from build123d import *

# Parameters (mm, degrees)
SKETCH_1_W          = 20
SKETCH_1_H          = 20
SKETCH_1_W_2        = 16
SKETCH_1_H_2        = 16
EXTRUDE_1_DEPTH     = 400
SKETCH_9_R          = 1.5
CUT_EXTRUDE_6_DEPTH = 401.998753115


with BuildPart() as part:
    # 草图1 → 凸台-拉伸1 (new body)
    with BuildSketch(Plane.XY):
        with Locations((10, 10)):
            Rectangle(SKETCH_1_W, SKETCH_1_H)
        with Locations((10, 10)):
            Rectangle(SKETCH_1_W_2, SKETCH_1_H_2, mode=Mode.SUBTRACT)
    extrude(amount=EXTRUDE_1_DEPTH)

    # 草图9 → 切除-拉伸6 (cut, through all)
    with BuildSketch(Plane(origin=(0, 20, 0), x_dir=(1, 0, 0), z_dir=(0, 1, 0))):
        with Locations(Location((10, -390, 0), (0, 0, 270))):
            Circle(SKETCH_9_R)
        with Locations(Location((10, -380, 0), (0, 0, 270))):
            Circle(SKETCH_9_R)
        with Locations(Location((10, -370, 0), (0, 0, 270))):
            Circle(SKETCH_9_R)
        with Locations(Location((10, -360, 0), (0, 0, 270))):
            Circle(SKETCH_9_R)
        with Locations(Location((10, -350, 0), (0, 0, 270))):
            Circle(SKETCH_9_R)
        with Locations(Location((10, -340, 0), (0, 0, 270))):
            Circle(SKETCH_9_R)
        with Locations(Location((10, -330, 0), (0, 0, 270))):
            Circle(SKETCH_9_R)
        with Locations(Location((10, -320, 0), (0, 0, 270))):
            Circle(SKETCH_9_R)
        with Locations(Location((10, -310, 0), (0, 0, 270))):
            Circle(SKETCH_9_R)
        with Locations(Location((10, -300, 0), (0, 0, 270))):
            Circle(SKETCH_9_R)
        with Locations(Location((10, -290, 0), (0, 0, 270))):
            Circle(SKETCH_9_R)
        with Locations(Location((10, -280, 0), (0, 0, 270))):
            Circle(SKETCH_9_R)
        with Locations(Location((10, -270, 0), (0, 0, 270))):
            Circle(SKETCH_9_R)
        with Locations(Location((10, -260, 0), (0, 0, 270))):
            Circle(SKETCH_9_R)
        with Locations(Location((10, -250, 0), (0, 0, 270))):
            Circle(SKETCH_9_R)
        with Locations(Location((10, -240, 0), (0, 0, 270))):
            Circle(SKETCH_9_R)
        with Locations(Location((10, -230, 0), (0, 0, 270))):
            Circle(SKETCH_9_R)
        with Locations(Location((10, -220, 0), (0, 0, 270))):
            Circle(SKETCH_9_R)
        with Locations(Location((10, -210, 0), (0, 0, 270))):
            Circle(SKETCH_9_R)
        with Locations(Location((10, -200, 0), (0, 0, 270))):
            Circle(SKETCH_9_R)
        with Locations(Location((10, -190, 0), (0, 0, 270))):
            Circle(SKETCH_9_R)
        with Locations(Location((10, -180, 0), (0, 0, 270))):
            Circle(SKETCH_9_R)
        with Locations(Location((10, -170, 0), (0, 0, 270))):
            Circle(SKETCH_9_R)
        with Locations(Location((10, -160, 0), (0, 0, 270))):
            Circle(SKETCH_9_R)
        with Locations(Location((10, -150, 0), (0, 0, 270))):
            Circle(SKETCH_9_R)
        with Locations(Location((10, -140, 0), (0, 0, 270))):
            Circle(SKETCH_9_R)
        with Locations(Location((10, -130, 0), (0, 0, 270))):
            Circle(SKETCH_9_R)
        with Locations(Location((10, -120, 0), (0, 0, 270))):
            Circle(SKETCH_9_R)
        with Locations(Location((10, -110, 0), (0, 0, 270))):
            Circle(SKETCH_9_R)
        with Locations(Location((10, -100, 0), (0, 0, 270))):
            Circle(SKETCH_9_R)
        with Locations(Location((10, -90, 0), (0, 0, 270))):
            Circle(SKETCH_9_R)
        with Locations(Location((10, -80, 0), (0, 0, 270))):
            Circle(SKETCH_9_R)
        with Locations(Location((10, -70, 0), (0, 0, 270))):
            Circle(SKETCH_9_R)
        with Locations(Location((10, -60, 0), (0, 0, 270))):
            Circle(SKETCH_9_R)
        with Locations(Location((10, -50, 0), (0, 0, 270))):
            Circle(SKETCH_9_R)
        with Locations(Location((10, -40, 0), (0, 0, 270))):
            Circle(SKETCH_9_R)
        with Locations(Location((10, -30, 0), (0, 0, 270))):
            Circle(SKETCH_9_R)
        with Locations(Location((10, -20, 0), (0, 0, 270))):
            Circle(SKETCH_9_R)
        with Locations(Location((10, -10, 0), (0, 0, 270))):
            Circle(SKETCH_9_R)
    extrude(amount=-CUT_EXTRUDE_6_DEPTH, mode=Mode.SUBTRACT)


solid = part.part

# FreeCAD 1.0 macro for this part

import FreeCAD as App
import Part
import Sketcher

doc = App.newDocument("Part")
body = doc.addObject("PartDesign::Body", "Body")

# Sketch on XY plane
sketch1 = body.newObject("Sketcher::SketchObject", "Sketch")
sketch1.AttachmentSupport = (doc.getObject("XY_Plane"), [""])
sketch1.MapMode = "FlatFace"
sketch1.addGeometry([
    Part.LineSegment(App.Vector(0, 20, 0), App.Vector(0, 0, 0)),  # 0
    Part.LineSegment(App.Vector(0, 0, 0), App.Vector(20, 0, 0)),  # 1
    Part.LineSegment(App.Vector(20, 0, 0), App.Vector(20, 20, 0)),  # 2
    Part.LineSegment(App.Vector(20, 20, 0), App.Vector(0, 20, 0)),  # 3
    Part.LineSegment(App.Vector(18, 2, 0), App.Vector(2, 2, 0)),  # 4
    Part.LineSegment(App.Vector(2, 2, 0), App.Vector(2, 18, 0)),  # 5
    Part.LineSegment(App.Vector(2, 18, 0), App.Vector(18, 18, 0)),  # 6
    Part.LineSegment(App.Vector(18, 18, 0), App.Vector(18, 2, 0)),  # 7
], False)
sketch1.addConstraint([
    Sketcher.Constraint("Coincident", 0, 2, 1, 1),
    Sketcher.Constraint("Coincident", 1, 2, 2, 1),
    Sketcher.Constraint("Coincident", 2, 2, 3, 1),
    Sketcher.Constraint("Coincident", 3, 2, 0, 1),
    Sketcher.Constraint("Coincident", 4, 2, 5, 1),
    Sketcher.Constraint("Coincident", 5, 2, 6, 1),
    Sketcher.Constraint("Coincident", 6, 2, 7, 1),
    Sketcher.Constraint("Coincident", 7, 2, 4, 1),
    Sketcher.Constraint("Vertical", 0),
    Sketcher.Constraint("Horizontal", 1),
    Sketcher.Constraint("Vertical", 2),
    Sketcher.Constraint("Horizontal", 3),
    Sketcher.Constraint("Horizontal", 4),
    Sketcher.Constraint("Vertical", 5),
    Sketcher.Constraint("Horizontal", 6),
    Sketcher.Constraint("Vertical", 7),
    Sketcher.Constraint("Coincident", 0, 2, -1, 1),
    Sketcher.Constraint("Equal", 3, 0),
    Sketcher.Constraint("Equal", 6, 5),
    Sketcher.Constraint("DistanceX", 1, 1, 1, 2, 20.0),
    Sketcher.Constraint("DistanceX", 4, 2, 4, 1, 16.0),
    Sketcher.Constraint("DistanceX", -1, 1, 4, 2, 2.0),
    Sketcher.Constraint("DistanceY", -1, 1, 4, 2, 2.0),
])
pad1 = body.newObject("PartDesign::Pad", "Pad")
pad1.Profile = sketch1
pad1.Length = 400

# Sketch on XZ plane
sketch2 = body.newObject("Sketcher::SketchObject", "Sketch001")
sketch2.AttachmentSupport = (doc.getObject("XZ_Plane"), [""])
sketch2.MapMode = "FlatFace"
sketch2.AttachmentOffset = App.Placement(App.Vector(0, 0, -20), App.Rotation())
sketch2.addGeometry([
    Part.Circle(App.Vector(10, 390, 0), App.Vector(0, 0, 1), 1.5),  # 0
    Part.Circle(App.Vector(10, 380, 0), App.Vector(0, 0, 1), 1.5),  # 1
    Part.Circle(App.Vector(10, 370, 0), App.Vector(0, 0, 1), 1.5),  # 2
    Part.Circle(App.Vector(10, 360, 0), App.Vector(0, 0, 1), 1.5),  # 3
    Part.Circle(App.Vector(10, 350, 0), App.Vector(0, 0, 1), 1.5),  # 4
    Part.Circle(App.Vector(10, 340, 0), App.Vector(0, 0, 1), 1.5),  # 5
    Part.Circle(App.Vector(10, 330, 0), App.Vector(0, 0, 1), 1.5),  # 6
    Part.Circle(App.Vector(10, 320, 0), App.Vector(0, 0, 1), 1.5),  # 7
    Part.Circle(App.Vector(10, 310, 0), App.Vector(0, 0, 1), 1.5),  # 8
    Part.Circle(App.Vector(10, 300, 0), App.Vector(0, 0, 1), 1.5),  # 9
    Part.Circle(App.Vector(10, 290, 0), App.Vector(0, 0, 1), 1.5),  # 10
    Part.Circle(App.Vector(10, 280, 0), App.Vector(0, 0, 1), 1.5),  # 11
    Part.Circle(App.Vector(10, 270, 0), App.Vector(0, 0, 1), 1.5),  # 12
    Part.Circle(App.Vector(10, 260, 0), App.Vector(0, 0, 1), 1.5),  # 13
    Part.Circle(App.Vector(10, 250, 0), App.Vector(0, 0, 1), 1.5),  # 14
    Part.Circle(App.Vector(10, 240, 0), App.Vector(0, 0, 1), 1.5),  # 15
    Part.Circle(App.Vector(10, 230, 0), App.Vector(0, 0, 1), 1.5),  # 16
    Part.Circle(App.Vector(10, 220, 0), App.Vector(0, 0, 1), 1.5),  # 17
    Part.Circle(App.Vector(10, 210, 0), App.Vector(0, 0, 1), 1.5),  # 18
    Part.Circle(App.Vector(10, 200, 0), App.Vector(0, 0, 1), 1.5),  # 19
    Part.Circle(App.Vector(10, 190, 0), App.Vector(0, 0, 1), 1.5),  # 20
    Part.Circle(App.Vector(10, 180, 0), App.Vector(0, 0, 1), 1.5),  # 21
    Part.Circle(App.Vector(10, 170, 0), App.Vector(0, 0, 1), 1.5),  # 22
    Part.Circle(App.Vector(10, 160, 0), App.Vector(0, 0, 1), 1.5),  # 23
    Part.Circle(App.Vector(10, 150, 0), App.Vector(0, 0, 1), 1.5),  # 24
    Part.Circle(App.Vector(10, 140, 0), App.Vector(0, 0, 1), 1.5),  # 25
    Part.Circle(App.Vector(10, 130, 0), App.Vector(0, 0, 1), 1.5),  # 26
    Part.Circle(App.Vector(10, 120, 0), App.Vector(0, 0, 1), 1.5),  # 27
    Part.Circle(App.Vector(10, 110, 0), App.Vector(0, 0, 1), 1.5),  # 28
    Part.Circle(App.Vector(10, 100, 0), App.Vector(0, 0, 1), 1.5),  # 29
    Part.Circle(App.Vector(10, 90, 0), App.Vector(0, 0, 1), 1.5),  # 30
    Part.Circle(App.Vector(10, 80, 0), App.Vector(0, 0, 1), 1.5),  # 31
    Part.Circle(App.Vector(10, 70, 0), App.Vector(0, 0, 1), 1.5),  # 32
    Part.Circle(App.Vector(10, 60, 0), App.Vector(0, 0, 1), 1.5),  # 33
    Part.Circle(App.Vector(10, 50, 0), App.Vector(0, 0, 1), 1.5),  # 34
    Part.Circle(App.Vector(10, 40, 0), App.Vector(0, 0, 1), 1.5),  # 35
    Part.Circle(App.Vector(10, 30, 0), App.Vector(0, 0, 1), 1.5),  # 36
    Part.Circle(App.Vector(10, 20, 0), App.Vector(0, 0, 1), 1.5),  # 37
    Part.Circle(App.Vector(10, 10, 0), App.Vector(0, 0, 1), 1.5),  # 38
], False)
sketch2.addConstraint([
    Sketcher.Constraint("Equal", 0, 1),
    Sketcher.Constraint("Equal", 1, 2),
    Sketcher.Constraint("Equal", 2, 3),
    Sketcher.Constraint("Equal", 3, 4),
    Sketcher.Constraint("Equal", 4, 5),
    Sketcher.Constraint("Equal", 5, 6),
    Sketcher.Constraint("Equal", 6, 7),
    Sketcher.Constraint("Equal", 7, 8),
    Sketcher.Constraint("Equal", 8, 9),
    Sketcher.Constraint("Equal", 9, 10),
    Sketcher.Constraint("Equal", 10, 11),
    Sketcher.Constraint("Equal", 11, 12),
    Sketcher.Constraint("Equal", 12, 13),
    Sketcher.Constraint("Equal", 13, 14),
    Sketcher.Constraint("Equal", 14, 15),
    Sketcher.Constraint("Equal", 15, 16),
    Sketcher.Constraint("Equal", 16, 17),
    Sketcher.Constraint("Equal", 17, 18),
    Sketcher.Constraint("Equal", 18, 19),
    Sketcher.Constraint("Equal", 19, 20),
    Sketcher.Constraint("Equal", 20, 21),
    Sketcher.Constraint("Equal", 21, 22),
    Sketcher.Constraint("Equal", 22, 23),
    Sketcher.Constraint("Equal", 23, 24),
    Sketcher.Constraint("Equal", 24, 25),
    Sketcher.Constraint("Equal", 25, 26),
    Sketcher.Constraint("Equal", 26, 27),
    Sketcher.Constraint("Equal", 27, 28),
    Sketcher.Constraint("Equal", 28, 29),
    Sketcher.Constraint("Equal", 29, 30),
    Sketcher.Constraint("Equal", 30, 31),
    Sketcher.Constraint("Equal", 31, 32),
    Sketcher.Constraint("Equal", 32, 33),
    Sketcher.Constraint("Equal", 33, 34),
    Sketcher.Constraint("Equal", 34, 35),
    Sketcher.Constraint("Equal", 35, 36),
    Sketcher.Constraint("Equal", 36, 37),
    Sketcher.Constraint("Equal", 37, 38),
    Sketcher.Constraint("Vertical", 0, 3, 1, 3),
    Sketcher.Constraint("Vertical", 1, 3, 2, 3),
    Sketcher.Constraint("Vertical", 2, 3, 3, 3),
    Sketcher.Constraint("Vertical", 3, 3, 4, 3),
    Sketcher.Constraint("Vertical", 4, 3, 5, 3),
    Sketcher.Constraint("Vertical", 5, 3, 6, 3),
    Sketcher.Constraint("Vertical", 6, 3, 7, 3),
    Sketcher.Constraint("Vertical", 7, 3, 8, 3),
    Sketcher.Constraint("Vertical", 8, 3, 9, 3),
    Sketcher.Constraint("Vertical", 9, 3, 10, 3),
    Sketcher.Constraint("Vertical", 10, 3, 11, 3),
    Sketcher.Constraint("Vertical", 11, 3, 12, 3),
    Sketcher.Constraint("Vertical", 12, 3, 13, 3),
    Sketcher.Constraint("Vertical", 13, 3, 14, 3),
    Sketcher.Constraint("Vertical", 14, 3, 15, 3),
    Sketcher.Constraint("Vertical", 15, 3, 16, 3),
    Sketcher.Constraint("Vertical", 16, 3, 17, 3),
    Sketcher.Constraint("Vertical", 17, 3, 18, 3),
    Sketcher.Constraint("Vertical", 18, 3, 19, 3),
    Sketcher.Constraint("Vertical", 19, 3, 20, 3),
    Sketcher.Constraint("Vertical", 20, 3, 21, 3),
    Sketcher.Constraint("Vertical", 21, 3, 22, 3),
    Sketcher.Constraint("Vertical", 22, 3, 23, 3),
    Sketcher.Constraint("Vertical", 23, 3, 24, 3),
    Sketcher.Constraint("Vertical", 24, 3, 25, 3),
    Sketcher.Constraint("Vertical", 25, 3, 26, 3),
    Sketcher.Constraint("Vertical", 26, 3, 27, 3),
    Sketcher.Constraint("Vertical", 27, 3, 28, 3),
    Sketcher.Constraint("Vertical", 28, 3, 29, 3),
    Sketcher.Constraint("Vertical", 29, 3, 30, 3),
    Sketcher.Constraint("Vertical", 30, 3, 31, 3),
    Sketcher.Constraint("Vertical", 31, 3, 32, 3),
    Sketcher.Constraint("Vertical", 32, 3, 33, 3),
    Sketcher.Constraint("Vertical", 33, 3, 34, 3),
    Sketcher.Constraint("Vertical", 34, 3, 35, 3),
    Sketcher.Constraint("Vertical", 35, 3, 36, 3),
    Sketcher.Constraint("Vertical", 36, 3, 37, 3),
    Sketcher.Constraint("Vertical", 37, 3, 38, 3),
    Sketcher.Constraint("Diameter", 0, 3.0),
    Sketcher.Constraint("DistanceX", -1, 1, 0, 3, 10.0),
    Sketcher.Constraint("DistanceY", -1, 1, 0, 3, 390.0),
    Sketcher.Constraint("DistanceY", -1, 1, 1, 3, 380.0),
    Sketcher.Constraint("DistanceY", -1, 1, 2, 3, 370.0),
    Sketcher.Constraint("DistanceY", -1, 1, 3, 3, 360.0),
    Sketcher.Constraint("DistanceY", -1, 1, 4, 3, 350.0),
    Sketcher.Constraint("DistanceY", -1, 1, 5, 3, 340.0),
    Sketcher.Constraint("DistanceY", -1, 1, 6, 3, 330.0),
    Sketcher.Constraint("DistanceY", -1, 1, 7, 3, 320.0),
    Sketcher.Constraint("DistanceY", -1, 1, 8, 3, 310.0),
    Sketcher.Constraint("DistanceY", -1, 1, 9, 3, 300.0),
    Sketcher.Constraint("DistanceY", -1, 1, 10, 3, 290.0),
    Sketcher.Constraint("DistanceY", -1, 1, 11, 3, 280.0),
    Sketcher.Constraint("DistanceY", -1, 1, 12, 3, 270.0),
    Sketcher.Constraint("DistanceY", -1, 1, 13, 3, 260.0),
    Sketcher.Constraint("DistanceY", -1, 1, 14, 3, 250.0),
    Sketcher.Constraint("DistanceY", -1, 1, 15, 3, 240.0),
    Sketcher.Constraint("DistanceY", -1, 1, 16, 3, 230.0),
    Sketcher.Constraint("DistanceY", -1, 1, 17, 3, 220.0),
    Sketcher.Constraint("DistanceY", -1, 1, 18, 3, 210.0),
    Sketcher.Constraint("DistanceY", -1, 1, 19, 3, 200.0),
    Sketcher.Constraint("DistanceY", -1, 1, 20, 3, 190.0),
    Sketcher.Constraint("DistanceY", -1, 1, 21, 3, 180.0),
    Sketcher.Constraint("DistanceY", -1, 1, 22, 3, 170.0),
    Sketcher.Constraint("DistanceY", -1, 1, 23, 3, 160.0),
    Sketcher.Constraint("DistanceY", -1, 1, 24, 3, 150.0),
    Sketcher.Constraint("DistanceY", -1, 1, 25, 3, 140.0),
    Sketcher.Constraint("DistanceY", -1, 1, 26, 3, 130.0),
    Sketcher.Constraint("DistanceY", -1, 1, 27, 3, 120.0),
    Sketcher.Constraint("DistanceY", -1, 1, 28, 3, 110.0),
    Sketcher.Constraint("DistanceY", -1, 1, 29, 3, 100.0),
    Sketcher.Constraint("DistanceY", -1, 1, 30, 3, 90.0),
    Sketcher.Constraint("DistanceY", -1, 1, 31, 3, 80.0),
    Sketcher.Constraint("DistanceY", -1, 1, 32, 3, 70.0),
    Sketcher.Constraint("DistanceY", -1, 1, 33, 3, 60.0),
    Sketcher.Constraint("DistanceY", -1, 1, 34, 3, 50.0),
    Sketcher.Constraint("DistanceY", -1, 1, 35, 3, 40.0),
    Sketcher.Constraint("DistanceY", -1, 1, 36, 3, 30.0),
    Sketcher.Constraint("DistanceY", -1, 1, 37, 3, 20.0),
    Sketcher.Constraint("DistanceY", -1, 1, 38, 3, 10.0),
])
pocket1 = body.newObject("PartDesign::Pocket", "Pocket")
pocket1.Profile = sketch2
pocket1.Type = "ThroughAll"
pocket1.Reversed = True

doc.recompute()
